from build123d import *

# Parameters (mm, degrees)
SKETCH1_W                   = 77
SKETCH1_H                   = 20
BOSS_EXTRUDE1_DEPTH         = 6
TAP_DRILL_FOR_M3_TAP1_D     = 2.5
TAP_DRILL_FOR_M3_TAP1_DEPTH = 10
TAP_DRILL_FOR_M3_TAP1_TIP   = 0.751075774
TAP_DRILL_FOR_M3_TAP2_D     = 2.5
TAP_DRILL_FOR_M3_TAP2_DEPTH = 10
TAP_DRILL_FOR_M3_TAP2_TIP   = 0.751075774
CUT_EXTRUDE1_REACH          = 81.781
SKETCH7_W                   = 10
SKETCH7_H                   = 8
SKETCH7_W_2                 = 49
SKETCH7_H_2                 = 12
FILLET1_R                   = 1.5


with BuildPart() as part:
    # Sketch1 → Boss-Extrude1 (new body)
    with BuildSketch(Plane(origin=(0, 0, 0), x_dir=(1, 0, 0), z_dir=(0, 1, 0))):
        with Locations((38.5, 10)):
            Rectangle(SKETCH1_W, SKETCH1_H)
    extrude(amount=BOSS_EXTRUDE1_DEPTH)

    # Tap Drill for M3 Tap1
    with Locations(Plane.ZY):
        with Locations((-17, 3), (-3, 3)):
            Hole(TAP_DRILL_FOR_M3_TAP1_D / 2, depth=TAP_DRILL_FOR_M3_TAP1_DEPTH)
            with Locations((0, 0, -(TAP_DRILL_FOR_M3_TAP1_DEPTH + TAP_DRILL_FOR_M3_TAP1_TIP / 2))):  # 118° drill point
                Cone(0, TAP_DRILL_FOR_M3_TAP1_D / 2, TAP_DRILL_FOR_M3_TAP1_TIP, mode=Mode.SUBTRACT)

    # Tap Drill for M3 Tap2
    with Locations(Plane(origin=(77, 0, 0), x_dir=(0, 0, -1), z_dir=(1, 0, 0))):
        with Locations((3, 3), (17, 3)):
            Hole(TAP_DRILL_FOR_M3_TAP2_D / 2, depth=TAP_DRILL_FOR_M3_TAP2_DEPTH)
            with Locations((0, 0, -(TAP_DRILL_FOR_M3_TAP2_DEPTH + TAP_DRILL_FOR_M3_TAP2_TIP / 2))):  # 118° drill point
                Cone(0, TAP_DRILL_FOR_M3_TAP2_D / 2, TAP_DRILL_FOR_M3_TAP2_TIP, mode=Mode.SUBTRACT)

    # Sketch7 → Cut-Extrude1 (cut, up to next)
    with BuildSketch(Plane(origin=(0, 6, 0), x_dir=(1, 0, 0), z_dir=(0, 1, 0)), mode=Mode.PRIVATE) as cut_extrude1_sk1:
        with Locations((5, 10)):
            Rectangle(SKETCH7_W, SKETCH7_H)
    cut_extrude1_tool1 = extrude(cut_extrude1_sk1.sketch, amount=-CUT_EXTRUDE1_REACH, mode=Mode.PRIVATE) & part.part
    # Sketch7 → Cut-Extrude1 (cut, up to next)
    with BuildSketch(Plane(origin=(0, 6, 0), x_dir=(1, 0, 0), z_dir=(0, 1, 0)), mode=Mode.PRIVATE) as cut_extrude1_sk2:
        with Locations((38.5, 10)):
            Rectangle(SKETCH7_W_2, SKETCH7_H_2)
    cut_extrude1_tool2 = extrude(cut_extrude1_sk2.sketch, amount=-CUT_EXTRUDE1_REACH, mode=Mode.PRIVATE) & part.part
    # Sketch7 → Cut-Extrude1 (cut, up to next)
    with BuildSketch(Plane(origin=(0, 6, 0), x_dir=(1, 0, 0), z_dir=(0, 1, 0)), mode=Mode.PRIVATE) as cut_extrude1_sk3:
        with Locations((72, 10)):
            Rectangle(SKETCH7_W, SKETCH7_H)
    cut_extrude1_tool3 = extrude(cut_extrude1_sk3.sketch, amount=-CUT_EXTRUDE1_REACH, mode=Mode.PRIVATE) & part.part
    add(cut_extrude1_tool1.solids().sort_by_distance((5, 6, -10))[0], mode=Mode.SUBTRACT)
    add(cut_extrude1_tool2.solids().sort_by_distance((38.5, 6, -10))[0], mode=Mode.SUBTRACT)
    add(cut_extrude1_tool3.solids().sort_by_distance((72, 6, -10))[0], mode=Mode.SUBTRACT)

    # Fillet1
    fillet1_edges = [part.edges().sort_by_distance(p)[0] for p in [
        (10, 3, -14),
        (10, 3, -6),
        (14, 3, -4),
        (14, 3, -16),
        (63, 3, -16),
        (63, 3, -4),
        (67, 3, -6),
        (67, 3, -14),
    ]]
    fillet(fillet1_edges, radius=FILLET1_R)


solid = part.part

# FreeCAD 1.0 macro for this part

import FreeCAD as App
import Part
import Sketcher
Q = App.Units.Quantity


def edges_at(feature, points):
    """Names of the edges that pass closest to the given points."""
    edges = feature.Shape.Edges
    near = lambda p: min(range(len(edges)), key=lambda i: edges[i].distToShape(Part.Vertex(*p))[0])
    return sorted({f"Edge{near(p) + 1}" for p in points})

doc = App.newDocument("Part")
body = doc.addObject("PartDesign::Body", "Body")

sketch1 = body.newObject("Sketcher::SketchObject", "Sketch")
sketch1.AttachmentSupport = (doc.getObject("XZ_Plane"), [""])
sketch1.MapMode = "FlatFace"
sketch1.addGeometry(Part.LineSegment(App.Vector(0, -20, 0), App.Vector(0, 0, 0)), False)
sketch1.addGeometry(Part.LineSegment(App.Vector(0, 0, 0), App.Vector(77, 0, 0)), False)
sketch1.addGeometry(Part.LineSegment(App.Vector(77, 0, 0), App.Vector(77, -20, 0)), False)
sketch1.addGeometry(Part.LineSegment(App.Vector(77, -20, 0), App.Vector(0, -20, 0)), False)
sketch1.addConstraint(Sketcher.Constraint("Coincident", 0, 2, 1, 1))
sketch1.addConstraint(Sketcher.Constraint("Coincident", 1, 2, 2, 1))
sketch1.addConstraint(Sketcher.Constraint("Coincident", 2, 2, 3, 1))
sketch1.addConstraint(Sketcher.Constraint("Coincident", 3, 2, 0, 1))
sketch1.addConstraint(Sketcher.Constraint("Vertical", 0))
sketch1.addConstraint(Sketcher.Constraint("Horizontal", 1))
sketch1.addConstraint(Sketcher.Constraint("Vertical", 2))
sketch1.addConstraint(Sketcher.Constraint("Horizontal", 3))
sketch1.addConstraint(Sketcher.Constraint("Coincident", 0, 2, -1, 1))
sketch1.addConstraint(Sketcher.Constraint("DistanceX", 1, 1, 1, 2, Q("77 mm")))
sketch1.addConstraint(Sketcher.Constraint("DistanceY", 0, 1, 0, 2, Q("20 mm")))
pad1 = body.newObject("PartDesign::Pad", "Pad")
pad1.Profile = sketch1
pad1.Length = 6
pad1.Reversed = True

sketch2 = body.newObject("Sketcher::SketchObject", "Sketch001")
sketch2.AttachmentSupport = (doc.getObject("YZ_Plane"), [""])
sketch2.MapMode = "FlatFace"
sketch2.addGeometry(Part.Circle(App.Vector(3, -17, 0), App.Vector(0, 0, 1), 1.2), False)
sketch2.addGeometry(Part.Circle(App.Vector(3, -3, 0), App.Vector(0, 0, 1), 1.2), False)
sketch2.addConstraint(Sketcher.Constraint("Equal", 0, 1))
sketch2.addConstraint(Sketcher.Constraint("Vertical", 0, 3, 1, 3))
sketch2.addConstraint(Sketcher.Constraint("Diameter", 0, Q("2.5 mm")))
sketch2.addConstraint(Sketcher.Constraint("DistanceX", -1, 1, 0, 3, Q("3 mm")))
sketch2.addConstraint(Sketcher.Constraint("DistanceY", 0, 3, -1, 1, Q("17 mm")))
sketch2.addConstraint(Sketcher.Constraint("DistanceY", 1, 3, -1, 1, Q("3 mm")))
doc.recompute()
hole = body.newObject("PartDesign::Hole", "Hole")
hole.Profile = sketch2
hole.ThreadType = "None"
hole.Diameter = 2.5
hole.DepthType = "Dimension"
hole.Depth = 10
hole.DrillPoint = "Angled"
hole.DrillPointAngle = 118
hole.Reversed = True

sketch3 = body.newObject("Sketcher::SketchObject", "Sketch002")
sketch3.AttachmentSupport = (doc.getObject("YZ_Plane"), [""])
sketch3.MapMode = "FlatFace"
sketch3.AttachmentOffset = App.Placement(App.Vector(0, 0, 77), App.Rotation())
sketch3.addGeometry(Part.Circle(App.Vector(3, -3, 0), App.Vector(0, 0, 1), 1.2), False)
sketch3.addGeometry(Part.Circle(App.Vector(3, -17, 0), App.Vector(0, 0, 1), 1.2), False)
sketch3.addConstraint(Sketcher.Constraint("Equal", 0, 1))
sketch3.addConstraint(Sketcher.Constraint("Vertical", 0, 3, 1, 3))
sketch3.addConstraint(Sketcher.Constraint("Diameter", 0, Q("2.5 mm")))
sketch3.addConstraint(Sketcher.Constraint("DistanceX", -1, 1, 0, 3, Q("3 mm")))
sketch3.addConstraint(Sketcher.Constraint("DistanceY", 0, 3, -1, 1, Q("3 mm")))
sketch3.addConstraint(Sketcher.Constraint("DistanceY", 1, 3, -1, 1, Q("17 mm")))
doc.recompute()
hole2 = body.newObject("PartDesign::Hole", "Hole001")
hole2.Profile = sketch3
hole2.ThreadType = "None"
hole2.Diameter = 2.5
hole2.DepthType = "Dimension"
hole2.Depth = 10
hole2.DrillPoint = "Angled"
hole2.DrillPointAngle = 118

sketch4 = body.newObject("Sketcher::SketchObject", "Sketch003")
sketch4.AttachmentSupport = (doc.getObject("XZ_Plane"), [""])
sketch4.MapMode = "FlatFace"
sketch4.AttachmentOffset = App.Placement(App.Vector(0, 0, -6), App.Rotation())
sketch4.addGeometry(Part.LineSegment(App.Vector(0, -14, 0), App.Vector(0, -6, 0)), False)
sketch4.addGeometry(Part.LineSegment(App.Vector(0, -6, 0), App.Vector(10, -6, 0)), False)
sketch4.addGeometry(Part.LineSegment(App.Vector(10, -6, 0), App.Vector(10, -14, 0)), False)
sketch4.addGeometry(Part.LineSegment(App.Vector(10, -14, 0), App.Vector(0, -14, 0)), False)
sketch4.addConstraint(Sketcher.Constraint("Coincident", 0, 2, 1, 1))
sketch4.addConstraint(Sketcher.Constraint("Coincident", 1, 2, 2, 1))
sketch4.addConstraint(Sketcher.Constraint("Coincident", 2, 2, 3, 1))
sketch4.addConstraint(Sketcher.Constraint("Coincident", 3, 2, 0, 1))
sketch4.addConstraint(Sketcher.Constraint("Vertical", 0))
sketch4.addConstraint(Sketcher.Constraint("Horizontal", 1))
sketch4.addConstraint(Sketcher.Constraint("Vertical", 2))
sketch4.addConstraint(Sketcher.Constraint("Horizontal", 3))
sketch4.addConstraint(Sketcher.Constraint("PointOnObject", 0, 2, -2))
sketch4.addConstraint(Sketcher.Constraint("DistanceX", 1, 1, 1, 2, Q("10 mm")))
sketch4.addConstraint(Sketcher.Constraint("DistanceY", 0, 1, 0, 2, Q("8 mm")))
sketch4.addConstraint(Sketcher.Constraint("DistanceY", 0, 2, -1, 1, Q("6 mm")))
pocket1 = body.newObject("PartDesign::Pocket", "Pocket")
pocket1.Profile = sketch4
pocket1.Type = "UpToFirst"
pocket1.Reversed = True

sketch5 = body.newObject("Sketcher::SketchObject", "Sketch004")
sketch5.AttachmentSupport = (doc.getObject("XZ_Plane"), [""])
sketch5.MapMode = "FlatFace"
sketch5.AttachmentOffset = App.Placement(App.Vector(0, 0, -6), App.Rotation())
sketch5.addGeometry(Part.LineSegment(App.Vector(14, -16, 0), App.Vector(14, -4, 0)), False)
sketch5.addGeometry(Part.LineSegment(App.Vector(14, -4, 0), App.Vector(63, -4, 0)), False)
sketch5.addGeometry(Part.LineSegment(App.Vector(63, -4, 0), App.Vector(63, -16, 0)), False)
sketch5.addGeometry(Part.LineSegment(App.Vector(63, -16, 0), App.Vector(14, -16, 0)), False)
sketch5.addConstraint(Sketcher.Constraint("Coincident", 0, 2, 1, 1))
sketch5.addConstraint(Sketcher.Constraint("Coincident", 1, 2, 2, 1))
sketch5.addConstraint(Sketcher.Constraint("Coincident", 2, 2, 3, 1))
sketch5.addConstraint(Sketcher.Constraint("Coincident", 3, 2, 0, 1))
sketch5.addConstraint(Sketcher.Constraint("Vertical", 0))
sketch5.addConstraint(Sketcher.Constraint("Horizontal", 1))
sketch5.addConstraint(Sketcher.Constraint("Vertical", 2))
sketch5.addConstraint(Sketcher.Constraint("Horizontal", 3))
sketch5.addConstraint(Sketcher.Constraint("DistanceX", 1, 1, 1, 2, Q("49 mm")))
sketch5.addConstraint(Sketcher.Constraint("DistanceY", 0, 1, 0, 2, Q("12 mm")))
sketch5.addConstraint(Sketcher.Constraint("DistanceX", -1, 1, 0, 2, Q("14 mm")))
sketch5.addConstraint(Sketcher.Constraint("DistanceY", 0, 2, -1, 1, Q("4 mm")))
pocket2 = body.newObject("PartDesign::Pocket", "Pocket001")
pocket2.Profile = sketch5
pocket2.Type = "UpToFirst"
pocket2.Reversed = True

sketch6 = body.newObject("Sketcher::SketchObject", "Sketch005")
sketch6.AttachmentSupport = (doc.getObject("XZ_Plane"), [""])
sketch6.MapMode = "FlatFace"
sketch6.AttachmentOffset = App.Placement(App.Vector(0, 0, -6), App.Rotation())
sketch6.addGeometry(Part.LineSegment(App.Vector(67, -14, 0), App.Vector(67, -6, 0)), False)
sketch6.addGeometry(Part.LineSegment(App.Vector(67, -6, 0), App.Vector(77, -6, 0)), False)
sketch6.addGeometry(Part.LineSegment(App.Vector(77, -6, 0), App.Vector(77, -14, 0)), False)
sketch6.addGeometry(Part.LineSegment(App.Vector(77, -14, 0), App.Vector(67, -14, 0)), False)
sketch6.addConstraint(Sketcher.Constraint("Coincident", 0, 2, 1, 1))
sketch6.addConstraint(Sketcher.Constraint("Coincident", 1, 2, 2, 1))
sketch6.addConstraint(Sketcher.Constraint("Coincident", 2, 2, 3, 1))
sketch6.addConstraint(Sketcher.Constraint("Coincident", 3, 2, 0, 1))
sketch6.addConstraint(Sketcher.Constraint("Vertical", 0))
sketch6.addConstraint(Sketcher.Constraint("Horizontal", 1))
sketch6.addConstraint(Sketcher.Constraint("Vertical", 2))
sketch6.addConstraint(Sketcher.Constraint("Horizontal", 3))
sketch6.addConstraint(Sketcher.Constraint("DistanceX", 1, 1, 1, 2, Q("10 mm")))
sketch6.addConstraint(Sketcher.Constraint("DistanceY", 0, 1, 0, 2, Q("8 mm")))
sketch6.addConstraint(Sketcher.Constraint("DistanceX", -1, 1, 0, 2, Q("67 mm")))
sketch6.addConstraint(Sketcher.Constraint("DistanceY", 0, 2, -1, 1, Q("6 mm")))
pocket3 = body.newObject("PartDesign::Pocket", "Pocket002")
pocket3.Profile = sketch6
pocket3.Type = "UpToFirst"
pocket3.Reversed = True
doc.recompute()

fillet = body.newObject("PartDesign::Fillet", "Fillet")
fillet.Base = (pocket3, edges_at(pocket3, [
    (10, 3, -14),
    (10, 3, -6),
    (14, 3, -4),
    (14, 3, -16),
    (63, 3, -16),
    (63, 3, -4),
    (67, 3, -6),
    (67, 3, -14),
]))
fillet.Radius = 1.5

doc.recompute()
